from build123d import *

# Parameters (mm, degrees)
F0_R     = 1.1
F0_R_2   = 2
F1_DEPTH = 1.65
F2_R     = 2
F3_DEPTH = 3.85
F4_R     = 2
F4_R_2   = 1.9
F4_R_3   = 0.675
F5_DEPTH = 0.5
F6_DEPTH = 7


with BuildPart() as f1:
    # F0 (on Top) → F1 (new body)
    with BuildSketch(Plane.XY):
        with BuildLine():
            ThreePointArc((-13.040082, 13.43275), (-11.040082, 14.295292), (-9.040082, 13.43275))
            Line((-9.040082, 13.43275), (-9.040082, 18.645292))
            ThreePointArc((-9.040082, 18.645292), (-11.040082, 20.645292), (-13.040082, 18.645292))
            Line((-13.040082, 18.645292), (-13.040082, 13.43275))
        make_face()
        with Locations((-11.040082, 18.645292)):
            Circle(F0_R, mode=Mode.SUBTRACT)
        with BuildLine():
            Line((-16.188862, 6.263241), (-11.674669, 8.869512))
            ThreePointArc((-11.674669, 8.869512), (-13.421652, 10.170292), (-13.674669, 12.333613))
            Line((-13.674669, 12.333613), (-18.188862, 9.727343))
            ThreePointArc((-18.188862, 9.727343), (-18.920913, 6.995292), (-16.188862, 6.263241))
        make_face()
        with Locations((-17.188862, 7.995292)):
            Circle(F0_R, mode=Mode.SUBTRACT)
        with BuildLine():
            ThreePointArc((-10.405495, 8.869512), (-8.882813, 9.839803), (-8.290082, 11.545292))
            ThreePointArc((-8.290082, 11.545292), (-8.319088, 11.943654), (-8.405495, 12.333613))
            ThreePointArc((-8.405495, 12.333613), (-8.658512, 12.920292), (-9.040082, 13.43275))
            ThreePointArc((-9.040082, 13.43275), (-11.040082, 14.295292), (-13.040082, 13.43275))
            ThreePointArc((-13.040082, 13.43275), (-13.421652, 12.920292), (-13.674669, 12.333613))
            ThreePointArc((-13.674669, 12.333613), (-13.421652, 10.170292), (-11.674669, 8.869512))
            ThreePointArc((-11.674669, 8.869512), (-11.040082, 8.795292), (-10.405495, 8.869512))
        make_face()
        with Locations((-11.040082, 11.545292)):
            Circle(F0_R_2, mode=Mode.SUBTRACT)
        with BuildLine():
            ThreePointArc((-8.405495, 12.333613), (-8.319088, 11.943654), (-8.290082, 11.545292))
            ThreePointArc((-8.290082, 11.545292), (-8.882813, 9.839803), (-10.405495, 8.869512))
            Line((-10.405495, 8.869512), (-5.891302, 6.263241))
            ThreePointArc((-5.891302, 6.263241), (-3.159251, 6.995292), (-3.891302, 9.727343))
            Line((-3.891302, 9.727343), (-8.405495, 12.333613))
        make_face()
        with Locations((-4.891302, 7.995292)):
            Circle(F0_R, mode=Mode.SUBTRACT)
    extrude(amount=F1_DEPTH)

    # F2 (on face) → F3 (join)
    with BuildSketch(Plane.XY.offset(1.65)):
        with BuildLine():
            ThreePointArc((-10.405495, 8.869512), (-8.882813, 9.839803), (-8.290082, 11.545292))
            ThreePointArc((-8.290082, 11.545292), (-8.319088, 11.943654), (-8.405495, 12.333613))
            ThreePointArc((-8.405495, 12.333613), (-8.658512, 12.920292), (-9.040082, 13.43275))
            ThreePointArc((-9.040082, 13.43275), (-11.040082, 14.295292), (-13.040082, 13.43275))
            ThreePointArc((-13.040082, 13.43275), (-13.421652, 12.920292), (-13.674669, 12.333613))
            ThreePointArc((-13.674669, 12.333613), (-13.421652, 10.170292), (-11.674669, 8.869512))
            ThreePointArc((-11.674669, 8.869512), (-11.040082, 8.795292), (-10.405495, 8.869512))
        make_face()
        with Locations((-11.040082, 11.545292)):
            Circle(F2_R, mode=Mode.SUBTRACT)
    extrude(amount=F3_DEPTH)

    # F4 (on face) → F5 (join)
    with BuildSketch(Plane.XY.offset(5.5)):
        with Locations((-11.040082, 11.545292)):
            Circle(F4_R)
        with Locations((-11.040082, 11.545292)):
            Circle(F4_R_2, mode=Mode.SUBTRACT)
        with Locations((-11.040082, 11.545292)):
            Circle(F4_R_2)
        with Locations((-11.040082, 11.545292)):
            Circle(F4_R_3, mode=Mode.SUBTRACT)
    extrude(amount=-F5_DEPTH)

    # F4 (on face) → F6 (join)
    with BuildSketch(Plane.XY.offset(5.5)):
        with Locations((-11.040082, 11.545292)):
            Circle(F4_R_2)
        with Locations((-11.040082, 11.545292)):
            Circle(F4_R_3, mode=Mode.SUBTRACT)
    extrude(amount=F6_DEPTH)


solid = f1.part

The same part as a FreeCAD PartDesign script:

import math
import FreeCAD as App
import Part
import Sketcher

V = App.Vector

doc = App.newDocument("Part")
body = doc.addObject("PartDesign::Body", "Body")

sketch1 = doc.addObject("Sketcher::SketchObject", "Sketch")
body.addObject(sketch1)
sketch1.AttachmentSupport = (doc.XY_Plane, [""])
sketch1.MapMode = "FlatFace"
sketch1.addGeometry([
    Part.LineSegment(V(-13.040082, 18.645292, 0), V(-13.040082, 13.43275, 0)),
    Part.ArcOfCircle(Part.Circle(V(-11.040097, 11.5453, 0), V(0, 0, 1), 2.749983), math.radians(136.658163), math.radians(163.34184)),
    Part.LineSegment(V(-13.674669, 12.333613, 0), V(-18.188862, 9.727343, 0)),
    Part.ArcOfCircle(Part.Circle(V(-17.188862, 7.995292, 0), V(0, 0, 1), 2), math.radians(119.999997), math.radians(299.999997)),
    Part.LineSegment(V(-16.188862, 6.263241, 0), V(-11.674669, 8.869512, 0)),
    Part.ArcOfCircle(Part.Circle(V(-11.040082, 11.545287, 0), V(0, 0, 1), 2.749995), math.radians(-103.34178), math.radians(-76.65822)),
    Part.LineSegment(V(-10.405495, 8.869512, 0), V(-5.891302, 6.263241, 0)),
    Part.ArcOfCircle(Part.Circle(V(-4.891302, 7.995292, 0), V(0, 0, 1), 2), math.radians(-119.999997), math.radians(60.000003)),
    Part.LineSegment(V(-3.891302, 9.727343, 0), V(-8.405495, 12.333613, 0)),
    Part.ArcOfCircle(Part.Circle(V(-11.040067, 11.5453, 0), V(0, 0, 1), 2.749983), math.radians(16.65816), math.radians(43.341837)),
    Part.LineSegment(V(-9.040082, 13.43275, 0), V(-9.040082, 18.645292, 0)),
    Part.ArcOfCircle(Part.Circle(V(-11.040082, 18.645292, 0), V(0, 0, 1), 2), math.radians(0), math.radians(180)),
    Part.Circle(V(-17.188862, 7.995292, 0), V(0, 0, 1), 1.1),
    Part.Circle(V(-4.891302, 7.995292, 0), V(0, 0, 1), 1.1),
    Part.Circle(V(-11.040082, 11.545292, 0), V(0, 0, 1), 2),
    Part.Circle(V(-11.040082, 18.645292, 0), V(0, 0, 1), 1.1),
], False)
sketch1.addConstraint([
    Sketcher.Constraint("Coincident", 0, 2, 1, 1),
    Sketcher.Constraint("Coincident", 1, 2, 2, 1),
    Sketcher.Constraint("Coincident", 2, 2, 3, 1),
    Sketcher.Constraint("Coincident", 3, 2, 4, 1),
    Sketcher.Constraint("Coincident", 4, 2, 5, 1),
    Sketcher.Constraint("Coincident", 5, 2, 6, 1),
    Sketcher.Constraint("Coincident", 6, 2, 7, 1),
    Sketcher.Constraint("Coincident", 7, 2, 8, 1),
    Sketcher.Constraint("Coincident", 8, 2, 9, 1),
    Sketcher.Constraint("Coincident", 9, 2, 10, 1),
    Sketcher.Constraint("Coincident", 10, 2, 11, 1),
    Sketcher.Constraint("Coincident", 11, 2, 0, 1),
    Sketcher.Constraint("Vertical", 0),
    Sketcher.Constraint("Vertical", 10),
    Sketcher.Constraint("Coincident", 12, 3, 3, 3),
    Sketcher.Constraint("Coincident", 13, 3, 7, 3),
    Sketcher.Constraint("Coincident", 14, 3, 5, 3),
    Sketcher.Constraint("Coincident", 15, 3, 11, 3),
    Sketcher.Constraint("Diameter", 14, 4.0),
    Sketcher.Constraint("Radius", 3, 2.0),
    Sketcher.Constraint("Radius", 7, 2.0),
    Sketcher.Constraint("Radius", 11, 2.0),
    Sketcher.Constraint("Diameter", 12, 2.2),
    Sketcher.Constraint("Diameter", 13, 2.2),
    Sketcher.Constraint("Diameter", 15, 2.2),
    Sketcher.Constraint("DistanceX", 0, 2, 14, 3, 2.0),
    Sketcher.Constraint("DistanceX", 2, 2, 3, 3, 1.0),
    Sketcher.Constraint("DistanceX", 3, 3, 3, 2, 1.0),
    Sketcher.Constraint("DistanceX", 1, 2, 4, 2, 2.0),
    Sketcher.Constraint("DistanceX", 6, 2, 7, 3, 1.0),
    Sketcher.Constraint("DistanceX", 7, 3, 7, 2, 1.0),
    Sketcher.Constraint("DistanceX", 5, 2, 8, 2, 2.0),
    Sketcher.Constraint("DistanceY", 14, 3, 15, 3, 7.1),
    Sketcher.Constraint("DistanceY", 3, 3, 11, 3, 10.65),
    Sketcher.Constraint("DistanceY", 7, 3, 11, 3, 10.65),
    Sketcher.Constraint("Radius", 1, 2.749983),
    Sketcher.Constraint("Radius", 5, 2.749995),
    Sketcher.Constraint("Radius", 9, 2.749983),
    Sketcher.Constraint("DistanceY", -1, 1, 1, 3, 11.5453),
    Sketcher.Constraint("DistanceX", 7, 3, -1, 1, 4.891302),
    Sketcher.Constraint("DistanceY", -1, 1, 9, 3, 11.5453),
    Sketcher.Constraint("DistanceX", 1, 2, 9, 3, 2.634602),
    Sketcher.Constraint("DistanceY", 4, 2, 1, 2, 3.464101),
    Sketcher.Constraint("DistanceX", 1, 3, 5, 2, 0.634602),
    Sketcher.Constraint("DistanceY", 5, 2, 8, 2, 3.464101),
    Sketcher.Constraint("Distance", 2, 5.212541),
    Sketcher.Constraint("Distance", 6, 5.212541),
    Sketcher.Constraint("DistanceY", 0, 2, 0, 1, 5.212542),
    Sketcher.Constraint("DistanceY", 10, 1, 10, 2, 5.212542),
    Sketcher.Constraint("DistanceY", -1, 1, 0, 2, 13.43275),
])
pad1 = doc.addObject("PartDesign::Pad", "Pad")
body.addObject(pad1)
pad1.Profile = sketch1
pad1.Length = 1.65

sketch2 = doc.addObject("Sketcher::SketchObject", "Sketch001")
body.addObject(sketch2)
sketch2.AttachmentSupport = (doc.XY_Plane, [""])
sketch2.MapMode = "FlatFace"
sketch2.AttachmentOffset = App.Placement(V(0, 0, 1.65), App.Rotation())
sketch2.addGeometry([
    Part.ArcOfCircle(Part.Circle(V(-11.04008, 11.545291, 0), V(0, 0, 1), 2.749998), math.radians(-76.658274), math.radians(0.000027)),
    Part.ArcOfCircle(Part.Circle(V(-11.04006, 11.545294, 0), V(0, 0, 1), 2.749978), math.radians(-0.00005), math.radians(16.658317)),
    Part.ArcOfCircle(Part.Circle(V(-11.040067, 11.5453, 0), V(0, 0, 1), 2.749983), math.radians(16.65816), math.radians(43.341837)),
    Part.ArcOfCircle(Part.Circle(V(-11.040082, 11.545293, 0), V(0, 0, 1), 2.749999), math.radians(43.341729), math.radians(136.658271)),
    Part.ArcOfCircle(Part.Circle(V(-11.040097, 11.5453, 0), V(0, 0, 1), 2.749983), math.radians(136.658163), math.radians(163.34184)),
    Part.ArcOfCircle(Part.Circle(V(-11.040083, 11.545291, 0), V(0, 0, 1), 2.749999), math.radians(163.341752), math.radians(256.658257)),
    Part.ArcOfCircle(Part.Circle(V(-11.040082, 11.545287, 0), V(0, 0, 1), 2.749995), math.radians(-103.34178), math.radians(-76.65822)),
    Part.Circle(V(-11.040082, 11.545292, 0), V(0, 0, 1), 2),
], False)
sketch2.addConstraint([
    Sketcher.Constraint("Coincident", 0, 2, 1, 1),
    Sketcher.Constraint("Coincident", 1, 2, 2, 1),
    Sketcher.Constraint("Coincident", 2, 2, 3, 1),
    Sketcher.Constraint("Coincident", 3, 2, 4, 1),
    Sketcher.Constraint("Coincident", 4, 2, 5, 1),
    Sketcher.Constraint("Coincident", 5, 2, 6, 1),
    Sketcher.Constraint("Coincident", 6, 2, 0, 1),
    Sketcher.Constraint("Coincident", 2, 3, 1, 3),
    Sketcher.Constraint("Coincident", 3, 3, 0, 3),
    Sketcher.Constraint("Coincident", 5, 3, 0, 3),
    Sketcher.Constraint("Coincident", 6, 3, 0, 3),
    Sketcher.Constraint("Coincident", 7, 3, 0, 3),
    Sketcher.Constraint("Diameter", 7, 4.0),
    Sketcher.Constraint("Radius", 0, 2.749998),
    Sketcher.Constraint("Radius", 3, 2.749999),
    Sketcher.Constraint("DistanceX", 3, 3, 2, 2, 2.0),
    Sketcher.Constraint("DistanceX", 3, 2, 3, 3, 2.0),
    Sketcher.Constraint("Radius", 1, 2.749978),
    Sketcher.Constraint("Radius", 4, 2.749983),
    Sketcher.Constraint("DistanceY", -1, 1, 2, 3, 11.5453),
    Sketcher.Constraint("DistanceX", 0, 3, -1, 1, 11.04008),
    Sketcher.Constraint("DistanceX", 4, 2, -1, 1, 13.674669),
    Sketcher.Constraint("DistanceX", 5, 2, -1, 1, 11.674669),
    Sketcher.Constraint("DistanceY", 0, 2, 1, 2, 0.788321),
    Sketcher.Constraint("DistanceY", 1, 3, 1, 2, 0.788319),
    Sketcher.Constraint("DistanceY", 6, 2, 0, 3, 2.675779),
])
pad2 = doc.addObject("PartDesign::Pad", "Pad001")
body.addObject(pad2)
pad2.Profile = sketch2
pad2.Length = 3.85

sketch3 = doc.addObject("Sketcher::SketchObject", "Sketch002")
body.addObject(sketch3)
sketch3.AttachmentSupport = (doc.XY_Plane, [""])
sketch3.MapMode = "FlatFace"
sketch3.AttachmentOffset = App.Placement(V(0, 0, 5.5), App.Rotation())
sketch3.addGeometry([
    Part.Circle(V(-11, 11.5, 0), V(0, 0, 1), 2),
    Part.Circle(V(-11, 11.5, 0), V(0, 0, 1), 0.7),
], False)
sketch3.addConstraint([
    Sketcher.Constraint("Coincident", 1, 3, 0, 3),
    Sketcher.Constraint("Diameter", 0, 4.0),
    Sketcher.Constraint("Diameter", 1, 1.35),
    Sketcher.Constraint("DistanceX", 0, 3, -1, 1, 11.040082),
    Sketcher.Constraint("DistanceY", -1, 1, 0, 3, 11.545292),
])
pad3 = doc.addObject("PartDesign::Pad", "Pad002")
body.addObject(pad3)
pad3.Profile = sketch3
pad3.Length = 0.5
pad3.Reversed = True

sketch4 = doc.addObject("Sketcher::SketchObject", "Sketch003")
body.addObject(sketch4)
sketch4.AttachmentSupport = (doc.XY_Plane, [""])
sketch4.MapMode = "FlatFace"
sketch4.AttachmentOffset = App.Placement(V(0, 0, 5.5), App.Rotation())
sketch4.addGeometry([
    Part.Circle(V(-11, 11.5, 0), V(0, 0, 1), 1.9),
    Part.Circle(V(-11, 11.5, 0), V(0, 0, 1), 0.7),
], False)
sketch4.addConstraint([
    Sketcher.Constraint("Coincident", 1, 3, 0, 3),
    Sketcher.Constraint("Diameter", 0, 3.8),
    Sketcher.Constraint("Diameter", 1, 1.35),
    Sketcher.Constraint("DistanceX", 0, 3, -1, 1, 11.040082),
    Sketcher.Constraint("DistanceY", -1, 1, 0, 3, 11.545292),
])
pad4 = doc.addObject("PartDesign::Pad", "Pad003")
body.addObject(pad4)
pad4.Profile = sketch4
pad4.Length = 7

doc.recompute()
